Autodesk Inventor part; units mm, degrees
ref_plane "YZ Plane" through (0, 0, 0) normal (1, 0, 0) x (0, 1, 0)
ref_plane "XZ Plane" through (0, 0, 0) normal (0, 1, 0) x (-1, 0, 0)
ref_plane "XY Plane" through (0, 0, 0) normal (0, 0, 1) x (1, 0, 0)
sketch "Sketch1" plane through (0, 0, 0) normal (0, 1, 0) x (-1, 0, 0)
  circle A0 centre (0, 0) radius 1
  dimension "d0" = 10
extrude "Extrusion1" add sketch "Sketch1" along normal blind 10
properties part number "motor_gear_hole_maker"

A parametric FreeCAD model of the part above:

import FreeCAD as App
import Part
import Sketcher
from FreeCAD import Vector
Q = App.Units.Quantity

doc = App.newDocument("Part")
params = doc.addObject("Spreadsheet::Sheet", "Params")
for row, (alias, value) in enumerate([
    ("sketch1_diameter", "2 mm"),
    ("pad1_length", "10 mm"),
], start=1):
    params.set(f"A{row}", alias)
    params.set(f"B{row}", "=" + value)
    params.setAlias(f"B{row}", alias)

body = doc.addObject("PartDesign::Body", "Body")

# Sketch on XZ plane
sketch1 = body.newObject("Sketcher::SketchObject", "Sketch")
sketch1.AttachmentSupport = (doc.getObject("XZ_Plane"), [""])
sketch1.MapMode = "FlatFace"
sketch1.addGeometry(Part.Circle(Vector(0, 0, 0), Vector(0, 0, 1), 1), False)
sketch1.addConstraint(Sketcher.Constraint("Coincident", 0, 3, -1, 1))
sketch1.addConstraint(Sketcher.Constraint("Diameter", 0, Q("2 mm")))
sketch1.setExpression("Constraints[1]", "Params.sketch1_diameter")
pad1 = body.newObject("PartDesign::Pad", "Pad")
pad1.Profile = sketch1
pad1.setExpression("Length", "Params.pad1_length")
pad1.Reversed = True

doc.recompute()
